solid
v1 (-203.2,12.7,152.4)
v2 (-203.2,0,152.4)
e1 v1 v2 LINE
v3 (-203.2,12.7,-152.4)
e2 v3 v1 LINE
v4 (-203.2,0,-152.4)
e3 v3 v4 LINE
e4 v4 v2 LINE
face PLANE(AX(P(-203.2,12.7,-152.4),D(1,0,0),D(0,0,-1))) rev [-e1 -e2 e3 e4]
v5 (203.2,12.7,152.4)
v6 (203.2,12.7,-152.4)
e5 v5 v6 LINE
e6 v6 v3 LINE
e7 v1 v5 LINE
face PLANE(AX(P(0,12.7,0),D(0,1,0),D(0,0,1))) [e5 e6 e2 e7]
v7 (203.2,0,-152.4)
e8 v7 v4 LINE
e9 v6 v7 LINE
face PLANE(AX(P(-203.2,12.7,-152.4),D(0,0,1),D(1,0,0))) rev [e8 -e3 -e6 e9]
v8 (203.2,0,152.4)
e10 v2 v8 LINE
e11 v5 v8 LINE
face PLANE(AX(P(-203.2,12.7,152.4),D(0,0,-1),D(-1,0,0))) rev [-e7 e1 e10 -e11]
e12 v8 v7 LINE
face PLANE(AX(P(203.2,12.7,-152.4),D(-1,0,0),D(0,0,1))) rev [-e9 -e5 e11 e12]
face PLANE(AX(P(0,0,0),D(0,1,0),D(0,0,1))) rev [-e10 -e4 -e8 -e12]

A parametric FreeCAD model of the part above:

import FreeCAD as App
import Part
import Sketcher
from FreeCAD import Vector
Q = App.Units.Quantity


def add_polygon(sketch, points):
    """Adds a closed chain of lines whose ends are joined by coincident constraints."""
    first, n = sketch.GeometryCount, len(points)
    for a, b in zip(points, points[1:] + points[:1]):
        sketch.addGeometry(Part.LineSegment(App.Vector(*a, 0), App.Vector(*b, 0)), False)
    for i in range(n):
        sketch.addConstraint(Sketcher.Constraint("Coincident", first + i, 2, first + (i + 1) % n, 1))

doc = App.newDocument("Part")
params = doc.addObject("Spreadsheet::Sheet", "Params")
for row, (alias, value) in enumerate([
    ("sketch1_width", "16 in"),
    ("sketch1_height", "12 in"),
    ("pad1_length", "0.5 in"),
], start=1):
    params.set(f"A{row}", alias)
    params.set(f"B{row}", "=" + value)
    params.setAlias(f"B{row}", alias)

body = doc.addObject("PartDesign::Body", "Body")

# Sketch on XZ plane
sketch1 = doc.addObject("Sketcher::SketchObject", "Sketch")
body.addObject(sketch1)
sketch1.AttachmentSupport = (doc.XZ_Plane, [""])
sketch1.MapMode = "FlatFace"
add_polygon(sketch1, [(-203, -152), (-203, 152), (203, 152), (203, -152)])  # lines 0-3
sketch1.addConstraint([
    Sketcher.Constraint("Vertical", 0),
    Sketcher.Constraint("Horizontal", 1),
    Sketcher.Constraint("Vertical", 2),
    Sketcher.Constraint("Horizontal", 3),
    Sketcher.Constraint("Symmetric", 0, 2, 2, 2, -1, 1),
    Sketcher.Constraint("DistanceX", 1, 1, 1, 2, Q("16 in")),
    Sketcher.Constraint("DistanceY", 0, 1, 0, 2, Q("12 in")),
])
sketch1.setExpression("Constraints[9]", "Params.sketch1_width")
sketch1.setExpression("Constraints[10]", "Params.sketch1_height")
pad1 = doc.addObject("PartDesign::Pad", "Pad")
body.addObject(pad1)
pad1.Profile = sketch1
pad1.setExpression("Length", "Params.pad1_length")
pad1.Reversed = True

doc.recompute()
